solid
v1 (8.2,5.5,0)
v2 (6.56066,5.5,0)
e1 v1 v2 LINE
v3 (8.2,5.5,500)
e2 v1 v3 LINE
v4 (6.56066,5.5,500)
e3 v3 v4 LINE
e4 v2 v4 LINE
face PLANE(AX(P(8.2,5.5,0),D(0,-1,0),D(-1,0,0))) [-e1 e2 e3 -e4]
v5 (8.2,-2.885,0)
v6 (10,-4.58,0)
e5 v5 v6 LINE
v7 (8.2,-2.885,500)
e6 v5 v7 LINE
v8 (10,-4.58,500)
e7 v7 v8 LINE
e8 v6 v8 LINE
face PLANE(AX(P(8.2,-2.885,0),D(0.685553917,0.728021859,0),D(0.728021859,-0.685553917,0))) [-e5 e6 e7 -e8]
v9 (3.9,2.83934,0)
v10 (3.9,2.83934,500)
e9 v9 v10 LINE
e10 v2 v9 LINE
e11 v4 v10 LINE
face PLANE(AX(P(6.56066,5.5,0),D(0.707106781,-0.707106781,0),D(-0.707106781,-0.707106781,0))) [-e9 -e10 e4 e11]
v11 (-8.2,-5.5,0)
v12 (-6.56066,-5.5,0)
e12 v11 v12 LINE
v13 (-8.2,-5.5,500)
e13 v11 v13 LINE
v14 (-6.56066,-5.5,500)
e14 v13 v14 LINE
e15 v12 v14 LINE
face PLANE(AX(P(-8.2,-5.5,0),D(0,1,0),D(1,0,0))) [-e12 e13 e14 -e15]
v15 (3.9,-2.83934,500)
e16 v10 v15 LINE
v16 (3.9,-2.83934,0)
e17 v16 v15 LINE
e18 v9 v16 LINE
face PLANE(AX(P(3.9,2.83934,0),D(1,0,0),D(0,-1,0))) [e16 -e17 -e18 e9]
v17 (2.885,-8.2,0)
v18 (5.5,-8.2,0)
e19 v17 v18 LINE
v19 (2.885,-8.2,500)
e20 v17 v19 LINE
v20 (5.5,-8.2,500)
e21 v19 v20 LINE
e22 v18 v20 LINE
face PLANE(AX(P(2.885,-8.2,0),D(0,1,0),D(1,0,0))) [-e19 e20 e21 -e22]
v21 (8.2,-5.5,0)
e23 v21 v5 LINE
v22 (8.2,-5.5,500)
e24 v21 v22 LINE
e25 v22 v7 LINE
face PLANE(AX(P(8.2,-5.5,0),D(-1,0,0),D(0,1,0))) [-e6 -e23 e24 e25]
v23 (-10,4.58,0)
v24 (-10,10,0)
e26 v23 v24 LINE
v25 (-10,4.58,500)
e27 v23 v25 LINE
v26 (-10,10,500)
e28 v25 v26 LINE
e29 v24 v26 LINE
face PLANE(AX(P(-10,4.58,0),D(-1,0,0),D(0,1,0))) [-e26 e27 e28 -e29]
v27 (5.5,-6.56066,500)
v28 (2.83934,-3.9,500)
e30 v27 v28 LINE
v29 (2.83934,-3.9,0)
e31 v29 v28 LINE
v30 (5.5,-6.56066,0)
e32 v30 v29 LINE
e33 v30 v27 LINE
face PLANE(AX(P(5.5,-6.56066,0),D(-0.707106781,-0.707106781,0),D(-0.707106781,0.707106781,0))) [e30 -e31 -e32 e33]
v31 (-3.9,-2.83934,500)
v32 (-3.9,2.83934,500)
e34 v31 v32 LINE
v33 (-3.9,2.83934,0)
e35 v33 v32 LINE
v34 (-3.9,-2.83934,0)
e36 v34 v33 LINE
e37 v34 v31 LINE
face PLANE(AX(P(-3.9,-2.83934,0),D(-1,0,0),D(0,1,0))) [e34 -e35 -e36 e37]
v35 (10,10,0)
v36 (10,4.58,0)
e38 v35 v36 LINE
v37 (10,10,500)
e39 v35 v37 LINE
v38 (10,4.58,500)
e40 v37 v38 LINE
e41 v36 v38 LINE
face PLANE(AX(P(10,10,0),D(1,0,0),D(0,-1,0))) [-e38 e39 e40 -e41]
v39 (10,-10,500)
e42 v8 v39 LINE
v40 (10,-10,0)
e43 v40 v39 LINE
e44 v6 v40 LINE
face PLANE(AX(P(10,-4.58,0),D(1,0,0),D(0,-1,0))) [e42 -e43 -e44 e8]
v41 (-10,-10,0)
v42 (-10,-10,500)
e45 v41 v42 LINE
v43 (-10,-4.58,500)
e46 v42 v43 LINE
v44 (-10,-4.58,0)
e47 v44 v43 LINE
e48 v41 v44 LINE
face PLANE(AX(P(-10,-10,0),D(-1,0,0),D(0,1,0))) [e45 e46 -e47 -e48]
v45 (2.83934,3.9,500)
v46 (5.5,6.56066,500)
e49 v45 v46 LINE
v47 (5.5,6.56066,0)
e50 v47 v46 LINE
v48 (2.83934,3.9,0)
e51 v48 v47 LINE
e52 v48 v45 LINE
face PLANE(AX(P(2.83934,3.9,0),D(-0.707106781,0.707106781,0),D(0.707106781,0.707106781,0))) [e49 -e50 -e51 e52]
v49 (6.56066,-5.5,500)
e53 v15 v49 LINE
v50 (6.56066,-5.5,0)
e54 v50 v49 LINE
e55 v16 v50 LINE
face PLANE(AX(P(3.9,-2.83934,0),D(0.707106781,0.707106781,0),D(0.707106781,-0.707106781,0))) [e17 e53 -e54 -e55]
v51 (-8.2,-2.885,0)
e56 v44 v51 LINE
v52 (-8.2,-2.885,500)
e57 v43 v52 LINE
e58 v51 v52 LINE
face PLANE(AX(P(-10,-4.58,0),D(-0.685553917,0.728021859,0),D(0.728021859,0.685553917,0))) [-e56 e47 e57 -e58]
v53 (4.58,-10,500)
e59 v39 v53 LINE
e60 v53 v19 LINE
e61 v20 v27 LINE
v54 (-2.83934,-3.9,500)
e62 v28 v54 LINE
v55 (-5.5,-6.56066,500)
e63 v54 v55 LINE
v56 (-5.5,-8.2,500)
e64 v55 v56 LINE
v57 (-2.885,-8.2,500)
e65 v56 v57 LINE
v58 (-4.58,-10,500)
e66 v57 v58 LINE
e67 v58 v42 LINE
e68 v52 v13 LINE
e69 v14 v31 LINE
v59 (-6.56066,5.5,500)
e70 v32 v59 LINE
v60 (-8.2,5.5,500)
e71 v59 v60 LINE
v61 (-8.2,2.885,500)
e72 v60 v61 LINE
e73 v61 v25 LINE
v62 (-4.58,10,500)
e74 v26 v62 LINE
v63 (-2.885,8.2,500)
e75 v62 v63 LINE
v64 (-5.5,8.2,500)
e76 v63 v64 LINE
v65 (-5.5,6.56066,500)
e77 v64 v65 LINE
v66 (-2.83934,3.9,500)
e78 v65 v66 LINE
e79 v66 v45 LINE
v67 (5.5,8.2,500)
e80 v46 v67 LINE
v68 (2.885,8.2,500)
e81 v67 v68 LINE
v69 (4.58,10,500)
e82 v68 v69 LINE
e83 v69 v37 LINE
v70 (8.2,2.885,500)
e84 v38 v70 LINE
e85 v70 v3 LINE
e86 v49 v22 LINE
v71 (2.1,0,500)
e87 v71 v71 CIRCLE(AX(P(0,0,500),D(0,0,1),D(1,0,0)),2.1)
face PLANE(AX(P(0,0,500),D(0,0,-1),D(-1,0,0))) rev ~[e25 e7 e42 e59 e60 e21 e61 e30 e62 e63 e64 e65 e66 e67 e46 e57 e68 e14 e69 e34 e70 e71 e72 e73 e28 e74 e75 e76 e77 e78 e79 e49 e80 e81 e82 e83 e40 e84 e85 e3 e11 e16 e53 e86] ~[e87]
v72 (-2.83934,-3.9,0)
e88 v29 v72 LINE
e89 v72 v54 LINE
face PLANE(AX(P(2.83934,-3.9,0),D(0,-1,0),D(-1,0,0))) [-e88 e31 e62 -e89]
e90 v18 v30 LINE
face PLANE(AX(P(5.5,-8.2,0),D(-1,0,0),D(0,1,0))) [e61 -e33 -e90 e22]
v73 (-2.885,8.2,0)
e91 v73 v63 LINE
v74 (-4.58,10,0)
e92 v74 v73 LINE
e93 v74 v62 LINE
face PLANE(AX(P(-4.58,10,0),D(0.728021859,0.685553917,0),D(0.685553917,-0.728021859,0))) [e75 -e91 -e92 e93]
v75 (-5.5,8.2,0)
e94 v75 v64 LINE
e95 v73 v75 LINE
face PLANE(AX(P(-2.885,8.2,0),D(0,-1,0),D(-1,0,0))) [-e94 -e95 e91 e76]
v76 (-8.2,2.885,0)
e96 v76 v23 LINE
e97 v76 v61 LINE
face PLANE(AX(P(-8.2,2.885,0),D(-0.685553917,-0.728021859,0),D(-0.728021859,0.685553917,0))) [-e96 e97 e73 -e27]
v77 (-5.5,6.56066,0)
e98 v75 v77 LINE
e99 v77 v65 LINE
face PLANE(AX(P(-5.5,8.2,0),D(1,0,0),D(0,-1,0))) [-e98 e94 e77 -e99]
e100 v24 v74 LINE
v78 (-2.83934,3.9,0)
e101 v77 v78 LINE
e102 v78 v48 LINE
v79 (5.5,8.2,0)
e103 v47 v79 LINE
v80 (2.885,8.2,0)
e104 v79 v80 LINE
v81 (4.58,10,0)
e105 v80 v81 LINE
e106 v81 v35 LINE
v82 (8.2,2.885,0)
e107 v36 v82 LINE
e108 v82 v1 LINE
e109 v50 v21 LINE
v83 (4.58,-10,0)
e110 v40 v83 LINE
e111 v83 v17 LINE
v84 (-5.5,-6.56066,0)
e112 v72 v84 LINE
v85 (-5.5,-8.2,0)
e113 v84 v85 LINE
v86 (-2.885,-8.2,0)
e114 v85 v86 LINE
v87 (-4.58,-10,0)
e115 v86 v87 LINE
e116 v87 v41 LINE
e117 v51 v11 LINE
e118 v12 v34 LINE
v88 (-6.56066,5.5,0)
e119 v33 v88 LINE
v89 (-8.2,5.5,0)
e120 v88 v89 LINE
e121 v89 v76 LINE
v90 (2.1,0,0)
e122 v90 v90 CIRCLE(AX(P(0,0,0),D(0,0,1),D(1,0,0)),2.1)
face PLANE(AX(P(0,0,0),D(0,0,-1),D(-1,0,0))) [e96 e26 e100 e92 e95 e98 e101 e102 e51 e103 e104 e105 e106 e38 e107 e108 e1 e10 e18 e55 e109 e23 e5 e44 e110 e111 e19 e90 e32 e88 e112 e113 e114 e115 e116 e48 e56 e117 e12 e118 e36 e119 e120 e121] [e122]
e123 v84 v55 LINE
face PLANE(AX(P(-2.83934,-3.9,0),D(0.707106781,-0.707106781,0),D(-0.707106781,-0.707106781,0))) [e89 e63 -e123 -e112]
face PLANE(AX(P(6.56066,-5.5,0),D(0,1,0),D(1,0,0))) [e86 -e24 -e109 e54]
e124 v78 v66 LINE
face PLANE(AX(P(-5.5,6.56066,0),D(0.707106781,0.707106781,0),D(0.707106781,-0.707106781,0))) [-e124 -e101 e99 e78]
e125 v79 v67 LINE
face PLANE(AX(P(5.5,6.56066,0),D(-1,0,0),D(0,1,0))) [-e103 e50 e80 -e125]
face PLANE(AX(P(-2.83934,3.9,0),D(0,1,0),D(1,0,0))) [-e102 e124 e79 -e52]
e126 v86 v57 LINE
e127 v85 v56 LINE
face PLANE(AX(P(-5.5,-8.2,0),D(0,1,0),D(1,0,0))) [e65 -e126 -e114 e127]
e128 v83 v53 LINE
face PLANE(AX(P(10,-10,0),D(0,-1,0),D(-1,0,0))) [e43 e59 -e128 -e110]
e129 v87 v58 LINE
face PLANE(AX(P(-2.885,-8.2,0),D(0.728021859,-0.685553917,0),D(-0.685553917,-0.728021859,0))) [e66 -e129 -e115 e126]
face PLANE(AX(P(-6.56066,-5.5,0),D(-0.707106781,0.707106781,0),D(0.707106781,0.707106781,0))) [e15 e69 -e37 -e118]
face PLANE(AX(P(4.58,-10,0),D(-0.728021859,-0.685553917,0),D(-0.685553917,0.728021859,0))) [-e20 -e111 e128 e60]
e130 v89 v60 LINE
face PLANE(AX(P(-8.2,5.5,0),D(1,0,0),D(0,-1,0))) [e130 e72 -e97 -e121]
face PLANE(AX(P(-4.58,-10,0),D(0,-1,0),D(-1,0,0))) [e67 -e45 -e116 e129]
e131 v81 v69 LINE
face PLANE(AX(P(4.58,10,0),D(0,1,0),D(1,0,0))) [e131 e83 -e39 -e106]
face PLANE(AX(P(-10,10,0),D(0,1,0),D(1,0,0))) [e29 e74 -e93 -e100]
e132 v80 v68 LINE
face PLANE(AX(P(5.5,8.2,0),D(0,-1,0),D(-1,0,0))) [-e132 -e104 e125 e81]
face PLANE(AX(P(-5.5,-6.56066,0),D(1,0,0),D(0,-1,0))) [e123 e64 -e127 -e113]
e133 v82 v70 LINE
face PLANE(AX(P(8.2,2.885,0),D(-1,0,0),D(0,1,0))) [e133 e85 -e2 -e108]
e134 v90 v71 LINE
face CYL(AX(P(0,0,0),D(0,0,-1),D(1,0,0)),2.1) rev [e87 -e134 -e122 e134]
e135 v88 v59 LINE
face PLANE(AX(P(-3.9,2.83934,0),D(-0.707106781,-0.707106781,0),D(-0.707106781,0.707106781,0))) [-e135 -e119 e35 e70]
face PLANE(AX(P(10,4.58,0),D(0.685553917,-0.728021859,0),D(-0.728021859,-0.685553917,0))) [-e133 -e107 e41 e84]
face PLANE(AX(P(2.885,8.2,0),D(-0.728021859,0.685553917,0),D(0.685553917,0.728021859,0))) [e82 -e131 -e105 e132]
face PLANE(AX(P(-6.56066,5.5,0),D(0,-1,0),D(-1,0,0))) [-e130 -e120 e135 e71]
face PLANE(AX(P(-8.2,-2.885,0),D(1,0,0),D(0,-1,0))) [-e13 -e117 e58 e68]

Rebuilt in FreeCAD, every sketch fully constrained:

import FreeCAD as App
import Part
import Sketcher
from FreeCAD import Vector
Q = App.Units.Quantity


def add_polygon(sketch, points):
    """Adds a closed chain of lines whose ends are joined by coincident constraints."""
    first, n = sketch.GeometryCount, len(points)
    for a, b in zip(points, points[1:] + points[:1]):
        sketch.addGeometry(Part.LineSegment(App.Vector(*a, 0), App.Vector(*b, 0)), False)
    for i in range(n):
        sketch.addConstraint(Sketcher.Constraint("Coincident", first + i, 2, first + (i + 1) % n, 1))

doc = App.newDocument("Part")
params = doc.addObject("Spreadsheet::Sheet", "Params")
for row, (alias, value) in enumerate([
    ("sketch1_diameter", "4.2 mm"),
    ("sketch1_width", "5.42 mm"),
    ("pad1_length", "500 mm"),
], start=1):
    params.set(f"A{row}", alias)
    params.set(f"B{row}", "=" + value)
    params.setAlias(f"B{row}", alias)

body = doc.addObject("PartDesign::Body", "Body")

# Sketch on XY plane
sketch1 = body.newObject("Sketcher::SketchObject", "Sketch")
sketch1.AttachmentSupport = (doc.getObject("XY_Plane"), [""])
sketch1.MapMode = "FlatFace"
add_polygon(sketch1, [(-2.885, 8.2), (-4.58, 10), (-10, 10), (-10, 4.58), (-8.2, 2.885), (-8.2, 5.5), (-6.56066, 5.5), (-3.9, 2.83934), (-3.9, -2.83934), (-6.56066, -5.5), (-8.2, -5.5), (-8.2, -2.885), (-10, -4.58), (-10, -10), (-4.58, -10), (-2.885, -8.2), (-5.5, -8.2), (-5.5, -6.56066), (-2.83934, -3.9), (2.83934, -3.9), (5.5, -6.56066), (5.5, -8.2), (2.885, -8.2), (4.58, -10), (10, -10), (10, -4.58), (8.2, -2.885), (8.2, -5.5), (6.56066, -5.5), (3.9, -2.83934), (3.9, 2.83934), (6.56066, 5.5), (8.2, 5.5), (8.2, 2.885), (10, 4.58), (10, 10), (4.58, 10), (2.885, 8.2), (5.5, 8.2), (5.5, 6.56066), (2.83934, 3.9), (-2.83934, 3.9), (-5.5, 6.56066), (-5.5, 8.2)])  # lines 0-43
sketch1.addGeometry(Part.Circle(Vector(0, 0, 0), Vector(0, 0, 1), 2.1), False)  # 44
sketch1.addConstraint(Sketcher.Constraint("Horizontal", 1))
sketch1.addConstraint(Sketcher.Constraint("Vertical", 2))
sketch1.addConstraint(Sketcher.Constraint("Vertical", 4))
sketch1.addConstraint(Sketcher.Constraint("Horizontal", 5))
sketch1.addConstraint(Sketcher.Constraint("Vertical", 7))
sketch1.addConstraint(Sketcher.Constraint("Horizontal", 9))
sketch1.addConstraint(Sketcher.Constraint("Vertical", 10))
sketch1.addConstraint(Sketcher.Constraint("Vertical", 12))
sketch1.addConstraint(Sketcher.Constraint("Horizontal", 13))
sketch1.addConstraint(Sketcher.Constraint("Horizontal", 15))
sketch1.addConstraint(Sketcher.Constraint("Vertical", 16))
sketch1.addConstraint(Sketcher.Constraint("Horizontal", 18))
sketch1.addConstraint(Sketcher.Constraint("Vertical", 20))
sketch1.addConstraint(Sketcher.Constraint("Horizontal", 21))
sketch1.addConstraint(Sketcher.Constraint("Horizontal", 23))
sketch1.addConstraint(Sketcher.Constraint("Vertical", 24))
sketch1.addConstraint(Sketcher.Constraint("Vertical", 26))
sketch1.addConstraint(Sketcher.Constraint("Horizontal", 27))
sketch1.addConstraint(Sketcher.Constraint("Vertical", 29))
sketch1.addConstraint(Sketcher.Constraint("Horizontal", 31))
sketch1.addConstraint(Sketcher.Constraint("Vertical", 32))
sketch1.addConstraint(Sketcher.Constraint("Vertical", 34))
sketch1.addConstraint(Sketcher.Constraint("Horizontal", 35))
sketch1.addConstraint(Sketcher.Constraint("Horizontal", 37))
sketch1.addConstraint(Sketcher.Constraint("Vertical", 38))
sketch1.addConstraint(Sketcher.Constraint("Horizontal", 40))
sketch1.addConstraint(Sketcher.Constraint("Vertical", 42))
sketch1.addConstraint(Sketcher.Constraint("Horizontal", 43))
sketch1.addConstraint(Sketcher.Constraint("Coincident", 44, 3, -1, 1))
sketch1.addConstraint(Sketcher.Constraint("Symmetric", 0, 2, 22, 2, -1, 1))
sketch1.addConstraint(Sketcher.Constraint("Symmetric", 2, 2, 24, 2, -1, 1))
sketch1.addConstraint(Sketcher.Constraint("Symmetric", 3, 2, 25, 2, -1, 1))
sketch1.addConstraint(Sketcher.Constraint("Symmetric", 5, 2, 27, 2, -1, 1))
sketch1.addConstraint(Sketcher.Constraint("Symmetric", 6, 2, 28, 2, -1, 1))
sketch1.addConstraint(Sketcher.Constraint("Symmetric", 8, 2, 30, 2, -1, 1))
sketch1.addConstraint(Sketcher.Constraint("Symmetric", 10, 2, 32, 2, -1, 1))
sketch1.addConstraint(Sketcher.Constraint("Symmetric", 11, 2, 33, 2, -1, 1))
sketch1.addConstraint(Sketcher.Constraint("Symmetric", 13, 2, 35, 2, -1, 1))
sketch1.addConstraint(Sketcher.Constraint("Symmetric", 14, 2, 36, 2, -1, 1))
sketch1.addConstraint(Sketcher.Constraint("Symmetric", 16, 2, 38, 2, -1, 1))
sketch1.addConstraint(Sketcher.Constraint("Symmetric", 17, 2, 39, 2, -1, 1))
sketch1.addConstraint(Sketcher.Constraint("Symmetric", 19, 2, 41, 2, -1, 1))
sketch1.addConstraint(Sketcher.Constraint("Symmetric", 21, 2, 43, 2, -1, 1))
sketch1.addConstraint(Sketcher.Constraint("Symmetric", 16, 2, 19, 2, -2))
sketch1.addConstraint(Sketcher.Constraint("Symmetric", 14, 2, 21, 2, -2))
sketch1.addConstraint(Sketcher.Constraint("Symmetric", 13, 2, 22, 2, -2))
sketch1.addConstraint(Sketcher.Constraint("Symmetric", 11, 2, 24, 2, -2))
sketch1.addConstraint(Sketcher.Constraint("Symmetric", 10, 2, 25, 2, -2))
sketch1.addConstraint(Sketcher.Constraint("Symmetric", 8, 2, 27, 2, -2))
sketch1.addConstraint(Sketcher.Constraint("Perpendicular", 6, 8))
sketch1.addConstraint(Sketcher.Constraint("Perpendicular", 0, 11))
sketch1.addConstraint(Sketcher.Constraint("Parallel", 8, 17))
sketch1.addConstraint(Sketcher.Constraint("Perpendicular", 17, 19))
sketch1.addConstraint(Sketcher.Constraint("Perpendicular", 28, 30))
sketch1.addConstraint(Sketcher.Constraint("Perpendicular", 39, 41))
sketch1.addConstraint(Sketcher.Constraint("Horizontal", 7, 2, 28, 2))
sketch1.addConstraint(Sketcher.Constraint("Equal", 35, 2))
sketch1.addConstraint(Sketcher.Constraint("Equal", 43, 4))
sketch1.addConstraint(Sketcher.Constraint("Equal", 40, 7))
sketch1.addConstraint(Sketcher.Constraint("Equal", 31, 16))
sketch1.addConstraint(Sketcher.Constraint("Equal", 0, 3))
sketch1.addConstraint(Sketcher.Constraint("Equal", 8, 17))
sketch1.addConstraint(Sketcher.Constraint("Diameter", 44, Q("4.2 mm")))
sketch1.addConstraint(Sketcher.Constraint("DistanceY", -1, 1, 0, 2, Q("10 mm")))
sketch1.addConstraint(Sketcher.Constraint("DistanceX", 1, 2, 1, 1, Q("5.42 mm")))
sketch1.addConstraint(Sketcher.Constraint("DistanceX", 3, 2, -1, 1, Q("8.2 mm")))
sketch1.addConstraint(Sketcher.Constraint("DistanceY", -1, 1, 4, 2, Q("5.5 mm")))
sketch1.addConstraint(Sketcher.Constraint("DistanceX", 6, 2, -1, 1, Q("3.9 mm")))
sketch1.addConstraint(Sketcher.Constraint("DistanceX", 15, 2, 15, 1, Q("2.615 mm")))
sketch1.addConstraint(Sketcher.Constraint("DistanceX", 5, 1, 5, 2, Q("1.63934 mm")))
sketch1.setExpression("Constraints[106]", "Params.sketch1_diameter")
sketch1.setExpression("Constraints[108]", "Params.sketch1_width")
pad1 = body.newObject("PartDesign::Pad", "Pad")
pad1.Profile = sketch1
pad1.setExpression("Length", "Params.pad1_length")

doc.recompute()
